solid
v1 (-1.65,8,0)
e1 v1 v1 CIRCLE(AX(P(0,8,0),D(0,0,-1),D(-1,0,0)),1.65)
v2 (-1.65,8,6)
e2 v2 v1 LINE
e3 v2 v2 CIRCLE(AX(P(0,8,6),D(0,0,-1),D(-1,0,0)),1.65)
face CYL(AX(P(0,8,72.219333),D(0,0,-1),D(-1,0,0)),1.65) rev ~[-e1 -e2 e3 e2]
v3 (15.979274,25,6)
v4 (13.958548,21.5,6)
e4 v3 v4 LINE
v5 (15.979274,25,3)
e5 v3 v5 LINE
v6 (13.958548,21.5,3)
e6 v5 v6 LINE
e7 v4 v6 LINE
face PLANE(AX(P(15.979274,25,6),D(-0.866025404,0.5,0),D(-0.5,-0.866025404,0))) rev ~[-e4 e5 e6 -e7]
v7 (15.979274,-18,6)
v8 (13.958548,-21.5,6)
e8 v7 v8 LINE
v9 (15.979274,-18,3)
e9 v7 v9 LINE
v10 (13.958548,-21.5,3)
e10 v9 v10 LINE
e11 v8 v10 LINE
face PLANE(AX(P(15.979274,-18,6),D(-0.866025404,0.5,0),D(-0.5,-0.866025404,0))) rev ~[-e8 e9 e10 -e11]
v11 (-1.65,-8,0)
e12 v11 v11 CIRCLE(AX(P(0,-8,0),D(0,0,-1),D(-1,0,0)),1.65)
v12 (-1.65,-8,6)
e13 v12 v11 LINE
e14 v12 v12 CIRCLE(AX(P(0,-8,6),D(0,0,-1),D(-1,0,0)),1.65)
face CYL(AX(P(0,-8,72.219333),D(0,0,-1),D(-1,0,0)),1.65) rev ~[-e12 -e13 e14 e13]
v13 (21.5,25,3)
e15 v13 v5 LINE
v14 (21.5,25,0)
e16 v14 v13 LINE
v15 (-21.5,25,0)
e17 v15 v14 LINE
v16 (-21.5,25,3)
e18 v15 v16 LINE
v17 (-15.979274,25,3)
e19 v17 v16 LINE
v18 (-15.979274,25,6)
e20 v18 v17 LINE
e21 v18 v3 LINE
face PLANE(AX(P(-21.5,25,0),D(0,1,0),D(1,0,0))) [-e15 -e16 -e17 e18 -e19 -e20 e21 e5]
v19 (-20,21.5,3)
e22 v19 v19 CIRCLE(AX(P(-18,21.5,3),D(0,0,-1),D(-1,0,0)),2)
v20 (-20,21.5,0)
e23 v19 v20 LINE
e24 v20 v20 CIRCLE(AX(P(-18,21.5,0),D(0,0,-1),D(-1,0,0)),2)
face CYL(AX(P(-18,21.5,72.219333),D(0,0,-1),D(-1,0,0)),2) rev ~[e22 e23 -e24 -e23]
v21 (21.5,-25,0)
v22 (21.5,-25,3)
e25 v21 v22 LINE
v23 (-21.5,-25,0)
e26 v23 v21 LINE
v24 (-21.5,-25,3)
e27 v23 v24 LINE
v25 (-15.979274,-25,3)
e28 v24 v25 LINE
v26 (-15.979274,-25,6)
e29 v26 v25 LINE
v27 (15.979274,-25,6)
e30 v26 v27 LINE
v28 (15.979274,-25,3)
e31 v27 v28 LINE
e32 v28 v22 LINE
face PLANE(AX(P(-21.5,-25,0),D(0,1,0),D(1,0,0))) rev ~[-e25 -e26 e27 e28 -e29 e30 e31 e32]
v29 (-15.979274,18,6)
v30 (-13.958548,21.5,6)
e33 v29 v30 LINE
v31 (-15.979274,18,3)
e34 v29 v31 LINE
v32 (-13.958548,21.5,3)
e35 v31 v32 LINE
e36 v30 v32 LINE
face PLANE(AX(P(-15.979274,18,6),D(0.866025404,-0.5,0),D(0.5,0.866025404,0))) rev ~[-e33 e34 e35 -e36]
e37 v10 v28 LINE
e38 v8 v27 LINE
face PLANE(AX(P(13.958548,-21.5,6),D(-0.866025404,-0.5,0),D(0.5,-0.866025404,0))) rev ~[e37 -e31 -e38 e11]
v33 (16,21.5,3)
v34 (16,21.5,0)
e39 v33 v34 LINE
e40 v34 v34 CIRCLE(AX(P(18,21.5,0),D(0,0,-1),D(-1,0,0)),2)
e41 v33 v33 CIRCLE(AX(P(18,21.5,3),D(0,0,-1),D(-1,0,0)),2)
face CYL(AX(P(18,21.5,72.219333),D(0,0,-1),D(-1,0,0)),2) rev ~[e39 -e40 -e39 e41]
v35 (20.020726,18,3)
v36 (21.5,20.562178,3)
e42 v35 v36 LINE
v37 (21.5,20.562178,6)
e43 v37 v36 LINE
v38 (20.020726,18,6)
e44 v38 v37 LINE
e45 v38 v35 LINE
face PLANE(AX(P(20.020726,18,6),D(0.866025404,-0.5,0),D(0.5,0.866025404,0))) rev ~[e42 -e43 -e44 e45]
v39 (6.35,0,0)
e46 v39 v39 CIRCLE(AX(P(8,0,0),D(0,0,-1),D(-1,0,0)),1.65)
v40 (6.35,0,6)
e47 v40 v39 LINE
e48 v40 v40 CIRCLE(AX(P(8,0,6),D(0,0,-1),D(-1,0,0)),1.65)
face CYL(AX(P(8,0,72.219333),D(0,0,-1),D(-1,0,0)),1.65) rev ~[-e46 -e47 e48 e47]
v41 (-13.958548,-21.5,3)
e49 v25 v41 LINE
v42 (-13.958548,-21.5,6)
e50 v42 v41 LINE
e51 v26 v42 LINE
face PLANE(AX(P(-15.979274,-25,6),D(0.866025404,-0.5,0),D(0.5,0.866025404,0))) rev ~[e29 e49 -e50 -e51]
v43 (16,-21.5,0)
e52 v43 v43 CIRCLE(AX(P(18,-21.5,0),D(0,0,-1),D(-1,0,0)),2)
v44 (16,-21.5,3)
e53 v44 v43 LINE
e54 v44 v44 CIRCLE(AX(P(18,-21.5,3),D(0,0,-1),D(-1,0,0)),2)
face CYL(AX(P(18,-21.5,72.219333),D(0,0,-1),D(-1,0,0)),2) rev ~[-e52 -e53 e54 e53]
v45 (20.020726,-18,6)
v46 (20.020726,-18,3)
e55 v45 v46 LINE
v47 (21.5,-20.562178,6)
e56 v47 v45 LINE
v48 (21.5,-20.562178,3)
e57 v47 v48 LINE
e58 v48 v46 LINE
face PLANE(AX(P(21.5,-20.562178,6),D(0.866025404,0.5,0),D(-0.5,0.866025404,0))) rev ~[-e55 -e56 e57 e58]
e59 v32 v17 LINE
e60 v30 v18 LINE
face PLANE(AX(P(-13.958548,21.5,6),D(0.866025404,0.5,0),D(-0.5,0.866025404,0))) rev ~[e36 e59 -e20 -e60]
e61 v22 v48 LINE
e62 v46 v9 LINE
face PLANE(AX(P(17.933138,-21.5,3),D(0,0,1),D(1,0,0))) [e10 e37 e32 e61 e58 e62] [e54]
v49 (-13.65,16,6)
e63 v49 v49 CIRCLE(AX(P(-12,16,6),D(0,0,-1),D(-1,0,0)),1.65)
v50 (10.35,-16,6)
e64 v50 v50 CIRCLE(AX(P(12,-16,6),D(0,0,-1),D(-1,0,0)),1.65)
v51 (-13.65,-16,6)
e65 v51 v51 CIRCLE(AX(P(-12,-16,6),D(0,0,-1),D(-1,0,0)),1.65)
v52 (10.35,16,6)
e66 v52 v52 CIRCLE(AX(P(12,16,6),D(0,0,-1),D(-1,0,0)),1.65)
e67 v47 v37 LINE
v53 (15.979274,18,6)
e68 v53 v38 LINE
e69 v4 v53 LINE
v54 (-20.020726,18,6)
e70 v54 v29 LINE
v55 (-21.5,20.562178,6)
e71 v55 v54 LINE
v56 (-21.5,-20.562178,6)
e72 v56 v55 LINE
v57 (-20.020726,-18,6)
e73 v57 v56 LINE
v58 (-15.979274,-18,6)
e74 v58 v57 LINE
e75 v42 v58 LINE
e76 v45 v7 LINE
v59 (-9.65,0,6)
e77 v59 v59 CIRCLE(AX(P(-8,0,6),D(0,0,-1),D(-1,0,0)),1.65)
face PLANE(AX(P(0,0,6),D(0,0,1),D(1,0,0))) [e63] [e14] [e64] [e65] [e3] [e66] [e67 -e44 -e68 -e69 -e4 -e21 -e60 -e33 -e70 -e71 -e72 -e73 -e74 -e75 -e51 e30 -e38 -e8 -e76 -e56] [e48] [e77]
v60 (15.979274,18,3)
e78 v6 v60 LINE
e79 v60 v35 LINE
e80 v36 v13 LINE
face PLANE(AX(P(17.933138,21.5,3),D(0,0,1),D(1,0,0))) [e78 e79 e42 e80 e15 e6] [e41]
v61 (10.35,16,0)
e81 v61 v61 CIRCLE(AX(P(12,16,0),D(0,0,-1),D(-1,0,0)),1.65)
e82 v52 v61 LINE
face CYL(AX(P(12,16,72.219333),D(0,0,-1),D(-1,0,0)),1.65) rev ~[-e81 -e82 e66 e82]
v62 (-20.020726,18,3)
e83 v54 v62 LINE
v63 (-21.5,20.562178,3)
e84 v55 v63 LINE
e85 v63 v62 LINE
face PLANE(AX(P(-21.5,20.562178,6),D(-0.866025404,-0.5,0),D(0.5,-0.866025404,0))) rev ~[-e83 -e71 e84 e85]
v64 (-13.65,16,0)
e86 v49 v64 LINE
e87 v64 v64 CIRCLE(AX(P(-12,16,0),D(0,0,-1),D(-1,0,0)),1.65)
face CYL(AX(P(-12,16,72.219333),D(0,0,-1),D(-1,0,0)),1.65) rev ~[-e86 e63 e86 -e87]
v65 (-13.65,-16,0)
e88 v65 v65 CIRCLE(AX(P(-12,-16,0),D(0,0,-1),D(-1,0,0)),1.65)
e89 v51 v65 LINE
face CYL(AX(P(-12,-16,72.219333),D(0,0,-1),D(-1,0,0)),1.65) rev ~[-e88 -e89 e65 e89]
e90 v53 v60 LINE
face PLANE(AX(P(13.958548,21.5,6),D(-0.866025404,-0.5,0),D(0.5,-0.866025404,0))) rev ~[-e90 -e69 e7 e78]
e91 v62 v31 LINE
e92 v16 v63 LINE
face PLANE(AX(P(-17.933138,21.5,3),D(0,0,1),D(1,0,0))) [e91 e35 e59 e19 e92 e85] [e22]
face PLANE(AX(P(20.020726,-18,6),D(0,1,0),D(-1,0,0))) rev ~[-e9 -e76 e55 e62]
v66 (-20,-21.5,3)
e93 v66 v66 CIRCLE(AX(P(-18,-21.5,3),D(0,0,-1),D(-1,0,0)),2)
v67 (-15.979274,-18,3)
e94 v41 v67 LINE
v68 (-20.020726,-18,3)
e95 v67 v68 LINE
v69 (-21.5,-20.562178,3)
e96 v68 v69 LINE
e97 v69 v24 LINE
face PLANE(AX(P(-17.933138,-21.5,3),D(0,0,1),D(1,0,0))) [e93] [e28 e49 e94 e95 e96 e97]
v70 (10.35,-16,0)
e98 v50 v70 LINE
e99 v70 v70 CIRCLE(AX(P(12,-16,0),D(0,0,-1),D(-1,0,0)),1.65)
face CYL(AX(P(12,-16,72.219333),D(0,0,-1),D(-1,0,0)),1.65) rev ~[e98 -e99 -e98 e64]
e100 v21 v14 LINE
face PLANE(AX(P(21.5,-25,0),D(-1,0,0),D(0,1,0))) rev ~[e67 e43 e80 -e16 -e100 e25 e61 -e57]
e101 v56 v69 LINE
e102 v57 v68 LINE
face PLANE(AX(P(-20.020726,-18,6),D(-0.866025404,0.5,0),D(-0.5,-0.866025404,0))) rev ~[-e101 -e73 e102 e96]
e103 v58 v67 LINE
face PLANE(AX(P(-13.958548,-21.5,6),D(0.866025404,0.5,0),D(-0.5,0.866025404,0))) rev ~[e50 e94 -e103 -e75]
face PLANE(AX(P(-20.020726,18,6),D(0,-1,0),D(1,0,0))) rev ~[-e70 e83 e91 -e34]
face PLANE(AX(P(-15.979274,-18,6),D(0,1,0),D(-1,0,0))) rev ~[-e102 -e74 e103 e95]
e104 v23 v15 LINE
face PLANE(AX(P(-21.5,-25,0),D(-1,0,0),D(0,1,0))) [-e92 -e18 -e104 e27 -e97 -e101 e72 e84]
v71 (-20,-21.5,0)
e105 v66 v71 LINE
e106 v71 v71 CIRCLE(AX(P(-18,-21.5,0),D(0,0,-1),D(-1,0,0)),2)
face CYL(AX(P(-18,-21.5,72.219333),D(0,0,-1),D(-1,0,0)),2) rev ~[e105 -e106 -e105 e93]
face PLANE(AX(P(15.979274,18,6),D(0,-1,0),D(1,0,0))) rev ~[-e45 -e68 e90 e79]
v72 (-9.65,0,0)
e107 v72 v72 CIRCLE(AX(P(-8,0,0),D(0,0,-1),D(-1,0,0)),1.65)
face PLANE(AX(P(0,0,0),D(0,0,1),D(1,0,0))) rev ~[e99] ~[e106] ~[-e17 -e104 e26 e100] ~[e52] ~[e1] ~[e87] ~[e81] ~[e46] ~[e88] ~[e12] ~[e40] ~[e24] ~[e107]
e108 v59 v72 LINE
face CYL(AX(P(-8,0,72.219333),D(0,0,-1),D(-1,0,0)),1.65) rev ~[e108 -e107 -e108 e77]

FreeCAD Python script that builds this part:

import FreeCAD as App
import Part
import Sketcher
Q = App.Units.Quantity

doc = App.newDocument("Part")
body = doc.addObject("PartDesign::Body", "Body")

sketch1 = body.newObject("Sketcher::SketchObject", "Sketch")
sketch1.AttachmentSupport = (doc.getObject("XY_Plane"), [""])
sketch1.MapMode = "FlatFace"
sketch1.addGeometry(Part.LineSegment(App.Vector(-21.5, 25, 0), App.Vector(-21.5, -25, 0)), False)
sketch1.addGeometry(Part.LineSegment(App.Vector(-21.5, -25, 0), App.Vector(21.5, -25, 0)), False)
sketch1.addGeometry(Part.LineSegment(App.Vector(21.5, -25, 0), App.Vector(21.5, 25, 0)), False)
sketch1.addGeometry(Part.LineSegment(App.Vector(21.5, 25, 0), App.Vector(-21.5, 25, 0)), False)
sketch1.addConstraint(Sketcher.Constraint("Coincident", 0, 2, 1, 1))
sketch1.addConstraint(Sketcher.Constraint("Coincident", 1, 2, 2, 1))
sketch1.addConstraint(Sketcher.Constraint("Coincident", 2, 2, 3, 1))
sketch1.addConstraint(Sketcher.Constraint("Coincident", 3, 2, 0, 1))
sketch1.addConstraint(Sketcher.Constraint("Vertical", 0))
sketch1.addConstraint(Sketcher.Constraint("Horizontal", 1))
sketch1.addConstraint(Sketcher.Constraint("Vertical", 2))
sketch1.addConstraint(Sketcher.Constraint("Horizontal", 3))
sketch1.addConstraint(Sketcher.Constraint("Symmetric", 0, 2, 2, 2, -1, 1))
sketch1.addConstraint(Sketcher.Constraint("DistanceX", 1, 1, 1, 2, 43.0))
sketch1.addConstraint(Sketcher.Constraint("DistanceY", 0, 2, 0, 1, 50.0))
pad1 = body.newObject("PartDesign::Pad", "Pad")
pad1.Profile = sketch1
pad1.Length = 6

sketch2 = body.newObject("Sketcher::SketchObject", "Sketch001")
sketch2.AttachmentSupport = (doc.getObject("XY_Plane"), [""])
sketch2.MapMode = "FlatFace"
sketch2.AttachmentOffset = App.Placement(App.Vector(0, 0, 6), App.Rotation())
sketch2.addGeometry(Part.Circle(App.Vector(-8, 0, 0), App.Vector(0, 0, 1), 1.65), False)
sketch2.addGeometry(Part.Circle(App.Vector(8, 0, 0), App.Vector(0, 0, 1), 1.65), False)
sketch2.addGeometry(Part.Circle(App.Vector(0, 8, 0), App.Vector(0, 0, 1), 1.65), False)
sketch2.addGeometry(Part.Circle(App.Vector(0, -8, 0), App.Vector(0, 0, 1), 1.65), False)
sketch2.addGeometry(Part.Circle(App.Vector(-12, 16, 0), App.Vector(0, 0, 1), 1.65), False)
sketch2.addGeometry(Part.Circle(App.Vector(-12, -16, 0), App.Vector(0, 0, 1), 1.65), False)
sketch2.addGeometry(Part.Circle(App.Vector(12, -16, 0), App.Vector(0, 0, 1), 1.65), False)
sketch2.addGeometry(Part.Circle(App.Vector(12, 16, 0), App.Vector(0, 0, 1), 1.65), False)
sketch2.addConstraint(Sketcher.Constraint("Equal", 0, 1))
sketch2.addConstraint(Sketcher.Constraint("Equal", 1, 2))
sketch2.addConstraint(Sketcher.Constraint("Equal", 2, 3))
sketch2.addConstraint(Sketcher.Constraint("Equal", 3, 4))
sketch2.addConstraint(Sketcher.Constraint("Equal", 4, 5))
sketch2.addConstraint(Sketcher.Constraint("Equal", 5, 6))
sketch2.addConstraint(Sketcher.Constraint("Equal", 6, 7))
sketch2.addConstraint(Sketcher.Constraint("Symmetric", 0, 3, 1, 3, -1, 1))
sketch2.addConstraint(Sketcher.Constraint("Symmetric", 2, 3, 3, 3, -1, 1))
sketch2.addConstraint(Sketcher.Constraint("Symmetric", 4, 3, 6, 3, -1, 1))
sketch2.addConstraint(Sketcher.Constraint("Symmetric", 5, 3, 7, 3, -1, 1))
sketch2.addConstraint(Sketcher.Constraint("Symmetric", 5, 3, 6, 3, -2))
sketch2.addConstraint(Sketcher.Constraint("PointOnObject", 0, 3, -1))
sketch2.addConstraint(Sketcher.Constraint("PointOnObject", 2, 3, -2))
sketch2.addConstraint(Sketcher.Constraint("Diameter", 0, 3.3))
sketch2.addConstraint(Sketcher.Constraint("DistanceX", 0, 3, -1, 1, 8.0))
sketch2.addConstraint(Sketcher.Constraint("DistanceY", -1, 1, 2, 3, 8.0))
sketch2.addConstraint(Sketcher.Constraint("DistanceX", 4, 3, -1, 1, 12.0))
sketch2.addConstraint(Sketcher.Constraint("DistanceY", -1, 1, 4, 3, 16.0))
doc.recompute()
hole = body.newObject("PartDesign::Hole", "Hole")
hole.Profile = sketch2
hole.ThreadType = "None"
hole.Diameter = 3.3
hole.DepthType = "ThroughAll"

sketch3 = body.newObject("Sketcher::SketchObject", "Sketch002")
sketch3.AttachmentSupport = (doc.getObject("XY_Plane"), [""])
sketch3.MapMode = "FlatFace"
sketch3.AttachmentOffset = App.Placement(App.Vector(0, 0, 6), App.Rotation())
sketch3.addGeometry(Part.LineSegment(App.Vector(-15.979274, -25, 0), App.Vector(-13.958548, -21.5, 0)), False)
sketch3.addGeometry(Part.LineSegment(App.Vector(-13.958548, -21.5, 0), App.Vector(-15.979274, -18, 0)), False)
sketch3.addGeometry(Part.LineSegment(App.Vector(-15.979274, -18, 0), App.Vector(-20.020726, -18, 0)), False)
sketch3.addGeometry(Part.LineSegment(App.Vector(-20.020726, -18, 0), App.Vector(-21.5, -20.562178, 0)), False)
sketch3.addGeometry(Part.LineSegment(App.Vector(-21.5, -20.562178, 0), App.Vector(-21.5, -25, 0)), False)
sketch3.addGeometry(Part.LineSegment(App.Vector(-21.5, -25, 0), App.Vector(-15.979274, -25, 0)), False)
sketch3.addGeometry(Part.LineSegment(App.Vector(13.958548, -21.5, 0), App.Vector(15.979274, -25, 0)), False)
sketch3.addGeometry(Part.LineSegment(App.Vector(15.979274, -25, 0), App.Vector(21.5, -25, 0)), False)
sketch3.addGeometry(Part.LineSegment(App.Vector(21.5, -25, 0), App.Vector(21.5, -20.562178, 0)), False)
sketch3.addGeometry(Part.LineSegment(App.Vector(21.5, -20.562178, 0), App.Vector(20.020726, -18, 0)), False)
sketch3.addGeometry(Part.LineSegment(App.Vector(20.020726, -18, 0), App.Vector(15.979274, -18, 0)), False)
sketch3.addGeometry(Part.LineSegment(App.Vector(15.979274, -18, 0), App.Vector(13.958548, -21.5, 0)), False)
sketch3.addGeometry(Part.LineSegment(App.Vector(20.020726, 18, 0), App.Vector(21.5, 20.562178, 0)), False)
sketch3.addGeometry(Part.LineSegment(App.Vector(21.5, 20.562178, 0), App.Vector(21.5, 25, 0)), False)
sketch3.addGeometry(Part.LineSegment(App.Vector(21.5, 25, 0), App.Vector(15.979274, 25, 0)), False)
sketch3.addGeometry(Part.LineSegment(App.Vector(15.979274, 25, 0), App.Vector(13.958548, 21.5, 0)), False)
sketch3.addGeometry(Part.LineSegment(App.Vector(13.958548, 21.5, 0), App.Vector(15.979274, 18, 0)), False)
sketch3.addGeometry(Part.LineSegment(App.Vector(15.979274, 18, 0), App.Vector(20.020726, 18, 0)), False)
sketch3.addGeometry(Part.LineSegment(App.Vector(-21.5, 20.562178, 0), App.Vector(-20.020726, 18, 0)), False)
sketch3.addGeometry(Part.LineSegment(App.Vector(-20.020726, 18, 0), App.Vector(-15.979274, 18, 0)), False)
sketch3.addGeometry(Part.LineSegment(App.Vector(-15.979274, 18, 0), App.Vector(-13.958548, 21.5, 0)), False)
sketch3.addGeometry(Part.LineSegment(App.Vector(-13.958548, 21.5, 0), App.Vector(-15.979274, 25, 0)), False)
sketch3.addGeometry(Part.LineSegment(App.Vector(-15.979274, 25, 0), App.Vector(-21.5, 25, 0)), False)
sketch3.addGeometry(Part.LineSegment(App.Vector(-21.5, 25, 0), App.Vector(-21.5, 20.562178, 0)), False)
sketch3.addConstraint(Sketcher.Constraint("Coincident", 0, 2, 1, 1))
sketch3.addConstraint(Sketcher.Constraint("Coincident", 1, 2, 2, 1))
sketch3.addConstraint(Sketcher.Constraint("Coincident", 2, 2, 3, 1))
sketch3.addConstraint(Sketcher.Constraint("Coincident", 3, 2, 4, 1))
sketch3.addConstraint(Sketcher.Constraint("Coincident", 4, 2, 5, 1))
sketch3.addConstraint(Sketcher.Constraint("Coincident", 5, 2, 0, 1))
sketch3.addConstraint(Sketcher.Constraint("Coincident", 6, 2, 7, 1))
sketch3.addConstraint(Sketcher.Constraint("Coincident", 7, 2, 8, 1))
sketch3.addConstraint(Sketcher.Constraint("Coincident", 8, 2, 9, 1))
sketch3.addConstraint(Sketcher.Constraint("Coincident", 9, 2, 10, 1))
sketch3.addConstraint(Sketcher.Constraint("Coincident", 10, 2, 11, 1))
sketch3.addConstraint(Sketcher.Constraint("Coincident", 11, 2, 6, 1))
sketch3.addConstraint(Sketcher.Constraint("Coincident", 12, 2, 13, 1))
sketch3.addConstraint(Sketcher.Constraint("Coincident", 13, 2, 14, 1))
sketch3.addConstraint(Sketcher.Constraint("Coincident", 14, 2, 15, 1))
sketch3.addConstraint(Sketcher.Constraint("Coincident", 15, 2, 16, 1))
sketch3.addConstraint(Sketcher.Constraint("Coincident", 16, 2, 17, 1))
sketch3.addConstraint(Sketcher.Constraint("Coincident", 17, 2, 12, 1))
sketch3.addConstraint(Sketcher.Constraint("Coincident", 18, 2, 19, 1))
sketch3.addConstraint(Sketcher.Constraint("Coincident", 19, 2, 20, 1))
sketch3.addConstraint(Sketcher.Constraint("Coincident", 20, 2, 21, 1))
sketch3.addConstraint(Sketcher.Constraint("Coincident", 21, 2, 22, 1))
sketch3.addConstraint(Sketcher.Constraint("Coincident", 22, 2, 23, 1))
sketch3.addConstraint(Sketcher.Constraint("Coincident", 23, 2, 18, 1))
sketch3.addConstraint(Sketcher.Constraint("Horizontal", 2))
sketch3.addConstraint(Sketcher.Constraint("Vertical", 4))
sketch3.addConstraint(Sketcher.Constraint("Horizontal", 5))
sketch3.addConstraint(Sketcher.Constraint("Horizontal", 7))
sketch3.addConstraint(Sketcher.Constraint("Vertical", 8))
sketch3.addConstraint(Sketcher.Constraint("Horizontal", 10))
sketch3.addConstraint(Sketcher.Constraint("Vertical", 13))
sketch3.addConstraint(Sketcher.Constraint("Horizontal", 14))
sketch3.addConstraint(Sketcher.Constraint("Horizontal", 17))
sketch3.addConstraint(Sketcher.Constraint("Horizontal", 19))
sketch3.addConstraint(Sketcher.Constraint("Horizontal", 22))
sketch3.addConstraint(Sketcher.Constraint("Vertical", 23))
sketch3.addConstraint(Sketcher.Constraint("Symmetric", 3, 2, 12, 2, -1, 1))
sketch3.addConstraint(Sketcher.Constraint("Symmetric", 5, 2, 14, 2, -1, 1))
sketch3.addConstraint(Sketcher.Constraint("Symmetric", 0, 2, 15, 2, -1, 1))
sketch3.addConstraint(Sketcher.Constraint("Symmetric", 1, 2, 16, 2, -1, 1))
sketch3.addConstraint(Sketcher.Constraint("Symmetric", 9, 2, 18, 2, -1, 1))
sketch3.addConstraint(Sketcher.Constraint("Symmetric", 11, 2, 20, 2, -1, 1))
sketch3.addConstraint(Sketcher.Constraint("Symmetric", 6, 2, 21, 2, -1, 1))
sketch3.addConstraint(Sketcher.Constraint("Symmetric", 8, 2, 23, 2, -1, 1))
sketch3.addConstraint(Sketcher.Constraint("Symmetric", 5, 2, 6, 2, -2))
sketch3.addConstraint(Sketcher.Constraint("Symmetric", 3, 2, 8, 2, -2))
sketch3.addConstraint(Sketcher.Constraint("Symmetric", 2, 2, 9, 2, -2))
sketch3.addConstraint(Sketcher.Constraint("Symmetric", 0, 2, 11, 2, -2))
sketch3.addConstraint(Sketcher.Constraint("Parallel", 0, 3))
sketch3.addConstraint(Sketcher.Constraint("Parallel", 1, 6))
sketch3.addConstraint(Sketcher.Constraint("Parallel", 3, 11))
sketch3.addConstraint(Sketcher.Constraint("Parallel", 11, 12))
sketch3.addConstraint(Sketcher.Constraint("Parallel", 15, 20))
sketch3.addConstraint(Sketcher.Constraint("Vertical", 1, 2, 5, 2))
sketch3.addConstraint(Sketcher.Constraint("Angle", 0, Q("60 deg")))
sketch3.addConstraint(Sketcher.Constraint("DistanceY", 1, 2, -1, 1, 18.0))
sketch3.addConstraint(Sketcher.Constraint("DistanceY", 4, 2, -1, 1, 25.0))
sketch3.addConstraint(Sketcher.Constraint("DistanceX", 2, 2, 6, 2, 36.0))
sketch3.addConstraint(Sketcher.Constraint("DistanceX", 3, 2, -1, 1, 21.5))
sketch3.addConstraint(Sketcher.Constraint("DistanceX", 2, 2, 2, 1, 4.041452))
pocket1 = body.newObject("PartDesign::Pocket", "Pocket")
pocket1.Profile = sketch3
pocket1.Length = 3

sketch4 = body.newObject("Sketcher::SketchObject", "Sketch003")
sketch4.AttachmentSupport = (doc.getObject("XY_Plane"), [""])
sketch4.MapMode = "FlatFace"
sketch4.AttachmentOffset = App.Placement(App.Vector(0, 0, 6), App.Rotation())
sketch4.addGeometry(Part.Circle(App.Vector(-18, -21.5, 0), App.Vector(0, 0, 1), 2), False)
sketch4.addGeometry(Part.Circle(App.Vector(18, -21.5, 0), App.Vector(0, 0, 1), 2), False)
sketch4.addGeometry(Part.Circle(App.Vector(18, 21.5, 0), App.Vector(0, 0, 1), 2), False)
sketch4.addGeometry(Part.Circle(App.Vector(-18, 21.5, 0), App.Vector(0, 0, 1), 2), False)
sketch4.addConstraint(Sketcher.Constraint("Equal", 0, 1))
sketch4.addConstraint(Sketcher.Constraint("Equal", 1, 2))
sketch4.addConstraint(Sketcher.Constraint("Equal", 2, 3))
sketch4.addConstraint(Sketcher.Constraint("Symmetric", 0, 3, 2, 3, -1, 1))
sketch4.addConstraint(Sketcher.Constraint("Symmetric", 1, 3, 3, 3, -1, 1))
sketch4.addConstraint(Sketcher.Constraint("Symmetric", 0, 3, 1, 3, -2))
sketch4.addConstraint(Sketcher.Constraint("Diameter", 0, 4.0))
sketch4.addConstraint(Sketcher.Constraint("DistanceX", 0, 3, -1, 1, 18.0))
sketch4.addConstraint(Sketcher.Constraint("DistanceY", 1, 3, 2, 3, 43.0))
doc.recompute()
hole2 = body.newObject("PartDesign::Hole", "Hole001")
hole2.Profile = sketch4
hole2.ThreadType = "None"
hole2.Diameter = 4
hole2.DepthType = "ThroughAll"

doc.recompute()
